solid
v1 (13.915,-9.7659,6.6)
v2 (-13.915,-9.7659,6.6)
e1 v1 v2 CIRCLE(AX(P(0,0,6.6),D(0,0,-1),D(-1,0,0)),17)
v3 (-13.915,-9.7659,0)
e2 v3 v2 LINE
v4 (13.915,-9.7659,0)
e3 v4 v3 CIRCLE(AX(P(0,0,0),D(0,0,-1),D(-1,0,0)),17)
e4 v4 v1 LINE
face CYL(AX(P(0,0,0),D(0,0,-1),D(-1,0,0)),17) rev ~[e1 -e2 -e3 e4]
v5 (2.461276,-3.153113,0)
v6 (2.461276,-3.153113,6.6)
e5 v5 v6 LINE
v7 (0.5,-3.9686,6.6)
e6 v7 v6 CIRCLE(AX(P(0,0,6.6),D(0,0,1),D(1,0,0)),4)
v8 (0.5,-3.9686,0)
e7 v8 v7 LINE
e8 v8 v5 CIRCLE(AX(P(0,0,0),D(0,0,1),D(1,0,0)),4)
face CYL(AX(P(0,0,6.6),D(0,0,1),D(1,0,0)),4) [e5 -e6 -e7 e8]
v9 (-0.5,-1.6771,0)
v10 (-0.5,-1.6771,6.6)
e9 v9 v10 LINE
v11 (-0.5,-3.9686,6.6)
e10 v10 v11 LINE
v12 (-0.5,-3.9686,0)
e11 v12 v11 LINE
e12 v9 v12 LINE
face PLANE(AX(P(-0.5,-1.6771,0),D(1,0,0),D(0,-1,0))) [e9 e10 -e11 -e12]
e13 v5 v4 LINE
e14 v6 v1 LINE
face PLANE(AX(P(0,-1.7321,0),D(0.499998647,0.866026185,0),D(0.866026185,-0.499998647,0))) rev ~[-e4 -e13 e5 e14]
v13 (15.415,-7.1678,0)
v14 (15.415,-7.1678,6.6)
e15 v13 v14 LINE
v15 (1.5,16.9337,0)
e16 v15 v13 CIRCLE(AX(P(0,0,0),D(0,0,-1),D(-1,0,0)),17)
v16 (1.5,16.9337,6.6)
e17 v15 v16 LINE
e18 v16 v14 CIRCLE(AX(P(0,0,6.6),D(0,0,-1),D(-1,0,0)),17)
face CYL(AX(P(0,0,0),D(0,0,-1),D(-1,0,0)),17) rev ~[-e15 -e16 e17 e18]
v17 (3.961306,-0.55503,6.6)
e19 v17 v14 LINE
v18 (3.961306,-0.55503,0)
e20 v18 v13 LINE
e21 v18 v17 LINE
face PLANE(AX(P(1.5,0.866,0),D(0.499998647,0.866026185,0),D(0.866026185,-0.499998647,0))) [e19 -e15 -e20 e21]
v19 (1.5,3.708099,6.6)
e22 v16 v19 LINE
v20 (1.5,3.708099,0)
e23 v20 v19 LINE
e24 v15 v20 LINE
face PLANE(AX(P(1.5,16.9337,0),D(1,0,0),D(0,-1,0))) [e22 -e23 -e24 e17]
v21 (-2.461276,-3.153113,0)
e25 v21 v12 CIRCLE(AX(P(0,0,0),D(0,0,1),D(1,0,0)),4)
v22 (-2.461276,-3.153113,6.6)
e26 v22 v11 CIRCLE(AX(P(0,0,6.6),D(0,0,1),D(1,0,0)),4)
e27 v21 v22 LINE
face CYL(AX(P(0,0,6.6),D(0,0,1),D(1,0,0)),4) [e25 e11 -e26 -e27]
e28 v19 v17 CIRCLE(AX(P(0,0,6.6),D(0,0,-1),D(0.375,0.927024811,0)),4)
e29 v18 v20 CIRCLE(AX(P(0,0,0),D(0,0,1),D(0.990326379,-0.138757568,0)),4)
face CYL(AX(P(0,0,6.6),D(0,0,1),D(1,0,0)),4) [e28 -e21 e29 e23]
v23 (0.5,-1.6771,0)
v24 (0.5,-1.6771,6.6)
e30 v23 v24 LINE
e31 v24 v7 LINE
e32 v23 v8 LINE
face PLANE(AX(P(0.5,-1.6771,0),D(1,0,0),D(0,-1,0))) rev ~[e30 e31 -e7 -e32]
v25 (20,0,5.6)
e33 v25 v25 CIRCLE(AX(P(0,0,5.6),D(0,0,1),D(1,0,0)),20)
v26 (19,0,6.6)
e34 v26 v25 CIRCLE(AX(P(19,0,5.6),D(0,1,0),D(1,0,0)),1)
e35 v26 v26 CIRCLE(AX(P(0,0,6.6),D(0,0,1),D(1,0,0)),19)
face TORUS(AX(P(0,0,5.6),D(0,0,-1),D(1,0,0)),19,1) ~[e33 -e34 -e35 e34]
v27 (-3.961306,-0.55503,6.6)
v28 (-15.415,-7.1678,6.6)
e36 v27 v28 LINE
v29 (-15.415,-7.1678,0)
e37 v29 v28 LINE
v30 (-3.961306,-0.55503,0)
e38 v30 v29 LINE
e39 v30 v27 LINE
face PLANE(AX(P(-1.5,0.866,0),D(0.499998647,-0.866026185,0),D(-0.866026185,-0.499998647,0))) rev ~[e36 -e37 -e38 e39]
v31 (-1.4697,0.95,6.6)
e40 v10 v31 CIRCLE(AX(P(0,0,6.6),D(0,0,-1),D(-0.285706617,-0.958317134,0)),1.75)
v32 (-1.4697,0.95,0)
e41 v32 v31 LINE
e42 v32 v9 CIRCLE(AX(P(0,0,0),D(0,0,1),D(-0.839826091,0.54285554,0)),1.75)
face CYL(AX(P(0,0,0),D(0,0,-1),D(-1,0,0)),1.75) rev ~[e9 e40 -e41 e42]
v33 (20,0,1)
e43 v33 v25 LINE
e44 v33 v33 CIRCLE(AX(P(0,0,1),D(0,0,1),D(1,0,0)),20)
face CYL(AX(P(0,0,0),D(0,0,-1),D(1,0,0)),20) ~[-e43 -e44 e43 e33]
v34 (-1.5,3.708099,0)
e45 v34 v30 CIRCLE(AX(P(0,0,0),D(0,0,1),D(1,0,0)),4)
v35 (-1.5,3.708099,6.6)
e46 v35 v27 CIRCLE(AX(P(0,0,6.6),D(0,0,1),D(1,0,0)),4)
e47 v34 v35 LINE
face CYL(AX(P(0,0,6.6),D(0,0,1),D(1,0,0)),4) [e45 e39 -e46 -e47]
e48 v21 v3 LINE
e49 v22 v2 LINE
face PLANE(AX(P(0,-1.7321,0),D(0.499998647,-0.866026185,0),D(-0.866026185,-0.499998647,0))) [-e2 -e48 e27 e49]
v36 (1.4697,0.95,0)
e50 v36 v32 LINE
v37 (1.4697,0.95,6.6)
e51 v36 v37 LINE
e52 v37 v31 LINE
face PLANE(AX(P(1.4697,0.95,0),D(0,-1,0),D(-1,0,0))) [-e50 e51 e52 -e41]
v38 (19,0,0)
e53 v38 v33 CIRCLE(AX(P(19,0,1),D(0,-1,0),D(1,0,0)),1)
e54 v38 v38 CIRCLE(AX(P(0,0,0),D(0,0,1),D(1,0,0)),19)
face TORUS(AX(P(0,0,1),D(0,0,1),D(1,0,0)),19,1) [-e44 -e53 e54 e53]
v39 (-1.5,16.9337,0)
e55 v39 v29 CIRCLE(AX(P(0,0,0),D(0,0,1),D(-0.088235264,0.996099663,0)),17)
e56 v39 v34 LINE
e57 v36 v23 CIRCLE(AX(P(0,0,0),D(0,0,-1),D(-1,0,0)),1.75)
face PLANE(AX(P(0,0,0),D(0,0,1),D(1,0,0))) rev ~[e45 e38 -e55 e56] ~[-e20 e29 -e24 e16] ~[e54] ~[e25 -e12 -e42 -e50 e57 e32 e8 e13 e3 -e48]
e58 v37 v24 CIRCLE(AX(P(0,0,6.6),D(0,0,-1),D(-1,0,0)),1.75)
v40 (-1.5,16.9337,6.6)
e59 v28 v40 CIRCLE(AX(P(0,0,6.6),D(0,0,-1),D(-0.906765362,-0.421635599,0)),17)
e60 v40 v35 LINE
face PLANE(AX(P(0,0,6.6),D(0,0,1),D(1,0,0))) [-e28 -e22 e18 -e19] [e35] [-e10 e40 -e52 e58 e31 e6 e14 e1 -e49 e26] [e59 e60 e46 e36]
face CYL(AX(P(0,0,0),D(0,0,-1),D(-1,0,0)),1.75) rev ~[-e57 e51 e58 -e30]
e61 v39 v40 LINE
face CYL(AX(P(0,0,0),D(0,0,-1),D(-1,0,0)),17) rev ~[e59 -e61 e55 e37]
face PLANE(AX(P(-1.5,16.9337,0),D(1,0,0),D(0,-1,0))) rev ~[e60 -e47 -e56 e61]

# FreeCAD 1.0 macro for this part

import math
import FreeCAD as App
import Part
import Sketcher

V = App.Vector
Q = App.Units.Quantity


def edges_at(feature, points):
    """Names of the edges that pass closest to the given points."""
    edges = feature.Shape.Edges
    near = lambda p: min(range(len(edges)), key=lambda i: edges[i].distToShape(Part.Vertex(*p))[0])
    return sorted({f"Edge{near(p) + 1}" for p in points})

doc = App.newDocument("Part")
body = doc.addObject("PartDesign::Body", "Body")

# Sketch on XY plane
sketch1 = body.newObject("Sketcher::SketchObject", "Sketch")
sketch1.AttachmentSupport = (doc.getObject("XY_Plane"), [""])
sketch1.MapMode = "FlatFace"
sketch1.addGeometry(Part.Circle(V(0, 0, 0), V(0, 0, 1), 20), False)
sketch1.addConstraint([
    Sketcher.Constraint("Coincident", 0, 3, -1, 1),
    Sketcher.Constraint("Diameter", 0, 40.0),
])
pad1 = body.newObject("PartDesign::Pad", "Pad")
pad1.Profile = sketch1
pad1.Length = 6.6

# Sketch on XY plane
sketch2 = body.newObject("Sketcher::SketchObject", "Sketch001")
sketch2.AttachmentSupport = (doc.getObject("XY_Plane"), [""])
sketch2.MapMode = "FlatFace"
sketch2.addGeometry([
    Part.ArcOfCircle(Part.Circle(V(0, 0, 0), V(0, 0, 1), 17), math.radians(95), math.radians(205)),  # 0
    Part.LineSegment(V(-2, 17, 0), V(-2, 1, 0)),  # 1
    Part.LineSegment(V(-2, 1, 0), V(-15, -7, 0)),  # 2
    Part.LineSegment(V(2, 1, 0), V(2, 17, 0)),  # 3
    Part.ArcOfCircle(Part.Circle(V(0, 0, 0), V(0, 0, 1), 17), math.radians(-25), math.radians(85)),  # 4
    Part.LineSegment(V(15, -7, 0), V(2, 1, 0)),  # 5
    Part.ArcOfCircle(Part.Circle(V(0, 0, 0), V(0, 0, 1), 17), math.radians(-145), math.radians(-35)),  # 6
    Part.LineSegment(V(-14, -10, 0), V(0, -2, 0)),  # 7
    Part.LineSegment(V(0, -2, 0), V(14, -10, 0)),  # 8
], False)
sketch2.addConstraint([
    Sketcher.Constraint("Coincident", 0, 1, 1, 1),
    Sketcher.Constraint("Coincident", 1, 2, 2, 1),
    Sketcher.Constraint("Coincident", 2, 2, 0, 2),
    Sketcher.Constraint("Coincident", 3, 2, 4, 2),
    Sketcher.Constraint("Coincident", 4, 1, 5, 1),
    Sketcher.Constraint("Coincident", 5, 2, 3, 1),
    Sketcher.Constraint("Coincident", 6, 1, 7, 1),
    Sketcher.Constraint("Coincident", 7, 2, 8, 1),
    Sketcher.Constraint("Coincident", 8, 2, 6, 2),
    Sketcher.Constraint("Vertical", 1),
    Sketcher.Constraint("Vertical", 3),
    Sketcher.Constraint("Coincident", 0, 3, -1, 1),
    Sketcher.Constraint("Coincident", 4, 3, -1, 1),
    Sketcher.Constraint("Coincident", 6, 3, -1, 1),
    Sketcher.Constraint("Equal", 0, 4),
    Sketcher.Constraint("Equal", 4, 6),
    Sketcher.Constraint("Symmetric", 1, 2, 5, 2, -2),
    Sketcher.Constraint("PointOnObject", 7, 2, -2),
    Sketcher.Constraint("Parallel", 2, 7),
    Sketcher.Constraint("Parallel", 5, 8),
    Sketcher.Constraint("Horizontal", 2, 2, 4, 1),
    Sketcher.Constraint("Equal", 5, 7),
    Sketcher.Constraint("Radius", 0, 17.0),
    Sketcher.Constraint("Angle", 2, Q("-150 deg")),
    Sketcher.Constraint("DistanceX", 0, 1, -1, 1, 1.5),
    Sketcher.Constraint("DistanceY", 1, 2, 1, 1, 16.0677),
])
pocket1 = body.newObject("PartDesign::Pocket", "Pocket")
pocket1.Profile = sketch2
pocket1.Length = 6.6
pocket1.Reversed = True

# Sketch on XY plane
sketch3 = body.newObject("Sketcher::SketchObject", "Sketch002")
sketch3.AttachmentSupport = (doc.getObject("XY_Plane"), [""])
sketch3.MapMode = "FlatFace"
sketch3.AttachmentOffset = App.Placement(V(0, 0, 6.6), App.Rotation())
sketch3.addGeometry(Part.Circle(V(0, 0, 0), V(0, 0, 1), 4), False)
sketch3.addConstraint([
    Sketcher.Constraint("Coincident", 0, 3, -1, 1),
    Sketcher.Constraint("Diameter", 0, 8.0),
])
pad2 = body.newObject("PartDesign::Pad", "Pad001")
pad2.Profile = sketch3
pad2.Length = 6.6
pad2.Reversed = True

# Sketch on XY plane
sketch4 = body.newObject("Sketcher::SketchObject", "Sketch003")
sketch4.AttachmentSupport = (doc.getObject("XY_Plane"), [""])
sketch4.MapMode = "FlatFace"
sketch4.addGeometry([
    Part.ArcOfCircle(Part.Circle(V(0, 0, 0), V(0, 0, 1), 1.8), math.radians(147), math.radians(253)),  # 0
    Part.LineSegment(V(-1.5, 0.9, 0), V(1.5, 0.9, 0)),  # 1
    Part.ArcOfCircle(Part.Circle(V(0, 0, 0), V(0, 0, 1), 1.8), math.radians(-73), math.radians(33)),  # 2
    Part.LineSegment(V(0.5, -1.7, 0), V(0.5, -4, 0)),  # 3
    Part.ArcOfCircle(Part.Circle(V(0, 0, 0), V(0, 0, 1), 4), math.radians(-97.18), math.radians(-82.82)),  # 4
    Part.LineSegment(V(-0.5, -4, 0), V(-0.5, -1.7, 0)),  # 5
], False)
sketch4.addConstraint([
    Sketcher.Constraint("Coincident", 0, 1, 1, 1),
    Sketcher.Constraint("Coincident", 1, 2, 2, 2),
    Sketcher.Constraint("Coincident", 2, 1, 3, 1),
    Sketcher.Constraint("Coincident", 3, 2, 4, 2),
    Sketcher.Constraint("Coincident", 4, 1, 5, 1),
    Sketcher.Constraint("Coincident", 5, 2, 0, 2),
    Sketcher.Constraint("Horizontal", 1),
    Sketcher.Constraint("Vertical", 3),
    Sketcher.Constraint("Vertical", 5),
    Sketcher.Constraint("Coincident", 0, 3, -1, 1),
    Sketcher.Constraint("Coincident", 2, 3, -1, 1),
    Sketcher.Constraint("Coincident", 4, 3, -1, 1),
    Sketcher.Constraint("Equal", 0, 2),
    Sketcher.Constraint("Horizontal", 3, 2, 4, 1),
    Sketcher.Constraint("Radius", 0, 1.75),
    Sketcher.Constraint("Radius", 4, 4.0),
    Sketcher.Constraint("DistanceX", -1, 1, 2, 1, 0.5),
    Sketcher.Constraint("DistanceY", -1, 1, 0, 1, 0.95),
])
pocket2 = body.newObject("PartDesign::Pocket", "Pocket001")
pocket2.Profile = sketch4
pocket2.Length = 6.6
pocket2.Reversed = True
doc.recompute()

fillet = body.newObject("PartDesign::Fillet", "Fillet")
fillet.Base = (pocket2, edges_at(pocket2, [(-20, 0, 6.6), (-20, 0, 0)]))
fillet.Radius = 1

doc.recompute()
